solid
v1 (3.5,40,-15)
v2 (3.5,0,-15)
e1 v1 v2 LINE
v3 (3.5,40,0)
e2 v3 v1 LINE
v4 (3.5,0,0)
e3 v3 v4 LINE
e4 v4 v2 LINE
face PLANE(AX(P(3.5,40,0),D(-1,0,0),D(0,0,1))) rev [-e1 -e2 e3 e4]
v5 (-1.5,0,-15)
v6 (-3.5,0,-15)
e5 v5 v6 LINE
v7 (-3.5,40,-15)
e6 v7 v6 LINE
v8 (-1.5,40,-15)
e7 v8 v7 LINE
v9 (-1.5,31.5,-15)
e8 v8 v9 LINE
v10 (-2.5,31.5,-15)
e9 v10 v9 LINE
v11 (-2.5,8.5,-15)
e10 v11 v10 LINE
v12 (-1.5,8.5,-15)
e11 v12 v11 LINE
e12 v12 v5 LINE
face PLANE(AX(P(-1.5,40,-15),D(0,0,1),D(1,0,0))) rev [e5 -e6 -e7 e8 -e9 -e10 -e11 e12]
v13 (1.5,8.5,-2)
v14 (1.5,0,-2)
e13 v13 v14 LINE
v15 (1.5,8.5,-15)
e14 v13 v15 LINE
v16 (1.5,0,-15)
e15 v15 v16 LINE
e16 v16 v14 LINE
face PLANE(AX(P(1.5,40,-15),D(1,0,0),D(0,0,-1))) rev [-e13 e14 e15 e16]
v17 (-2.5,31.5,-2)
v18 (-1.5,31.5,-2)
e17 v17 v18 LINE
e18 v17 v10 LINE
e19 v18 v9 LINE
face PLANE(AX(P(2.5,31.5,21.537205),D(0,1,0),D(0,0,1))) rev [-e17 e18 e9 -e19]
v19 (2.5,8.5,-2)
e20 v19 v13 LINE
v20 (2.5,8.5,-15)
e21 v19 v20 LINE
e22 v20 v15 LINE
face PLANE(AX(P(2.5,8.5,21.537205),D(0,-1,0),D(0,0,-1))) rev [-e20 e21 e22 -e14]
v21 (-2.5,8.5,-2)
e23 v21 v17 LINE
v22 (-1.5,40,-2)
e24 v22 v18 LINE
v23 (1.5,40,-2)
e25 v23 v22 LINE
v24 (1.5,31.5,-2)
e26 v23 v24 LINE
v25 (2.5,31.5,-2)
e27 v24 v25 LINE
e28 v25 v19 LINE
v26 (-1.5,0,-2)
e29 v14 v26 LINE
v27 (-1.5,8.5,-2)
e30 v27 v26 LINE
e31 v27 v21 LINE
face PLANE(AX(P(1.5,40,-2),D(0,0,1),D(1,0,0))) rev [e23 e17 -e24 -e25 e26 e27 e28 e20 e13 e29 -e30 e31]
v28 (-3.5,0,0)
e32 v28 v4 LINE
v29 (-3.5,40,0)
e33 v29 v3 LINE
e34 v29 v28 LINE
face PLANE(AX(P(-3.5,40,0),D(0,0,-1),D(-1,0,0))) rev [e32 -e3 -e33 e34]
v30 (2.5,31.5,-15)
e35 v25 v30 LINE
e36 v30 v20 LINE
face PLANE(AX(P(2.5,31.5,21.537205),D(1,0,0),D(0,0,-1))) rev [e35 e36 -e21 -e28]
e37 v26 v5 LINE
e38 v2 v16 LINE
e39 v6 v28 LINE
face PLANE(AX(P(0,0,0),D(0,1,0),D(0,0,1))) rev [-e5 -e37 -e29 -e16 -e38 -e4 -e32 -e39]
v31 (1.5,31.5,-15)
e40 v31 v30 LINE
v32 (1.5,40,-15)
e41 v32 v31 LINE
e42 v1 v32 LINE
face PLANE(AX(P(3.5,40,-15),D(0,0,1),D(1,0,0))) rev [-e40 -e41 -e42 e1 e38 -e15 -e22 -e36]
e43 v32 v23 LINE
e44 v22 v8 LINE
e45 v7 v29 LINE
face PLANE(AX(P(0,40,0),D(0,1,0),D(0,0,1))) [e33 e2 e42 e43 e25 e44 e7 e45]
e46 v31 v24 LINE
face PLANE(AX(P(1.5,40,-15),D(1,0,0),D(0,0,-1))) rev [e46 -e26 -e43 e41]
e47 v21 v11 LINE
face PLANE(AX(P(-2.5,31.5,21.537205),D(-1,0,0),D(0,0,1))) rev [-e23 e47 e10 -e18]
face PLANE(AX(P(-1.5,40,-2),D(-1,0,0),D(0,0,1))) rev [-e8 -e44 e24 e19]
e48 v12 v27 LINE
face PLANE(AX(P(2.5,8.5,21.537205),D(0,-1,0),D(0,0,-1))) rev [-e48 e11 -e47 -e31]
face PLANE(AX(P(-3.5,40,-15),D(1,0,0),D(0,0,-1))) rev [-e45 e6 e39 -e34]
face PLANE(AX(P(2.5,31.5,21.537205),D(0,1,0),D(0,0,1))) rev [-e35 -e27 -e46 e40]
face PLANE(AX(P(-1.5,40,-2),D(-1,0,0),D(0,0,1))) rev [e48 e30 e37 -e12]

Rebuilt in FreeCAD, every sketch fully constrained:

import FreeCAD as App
import Part
import Sketcher
from FreeCAD import Vector

doc = App.newDocument("Part")
body = doc.addObject("PartDesign::Body", "Body")

sketch1 = body.newObject("Sketcher::SketchObject", "Sketch")
sketch1.AttachmentSupport = (doc.getObject("XZ_Plane"), [""])
sketch1.MapMode = "FlatFace"
sketch1.addGeometry(Part.LineSegment(Vector(-3.5, -15, 0), Vector(-3.5, 0, 0)), False)
sketch1.addGeometry(Part.LineSegment(Vector(-3.5, 0, 0), Vector(3.5, 0, 0)), False)
sketch1.addGeometry(Part.LineSegment(Vector(3.5, 0, 0), Vector(3.5, -15, 0)), False)
sketch1.addGeometry(Part.LineSegment(Vector(3.5, -15, 0), Vector(1.5, -15, 0)), False)
sketch1.addGeometry(Part.LineSegment(Vector(1.5, -15, 0), Vector(1.5, -2, 0)), False)
sketch1.addGeometry(Part.LineSegment(Vector(1.5, -2, 0), Vector(-1.5, -2, 0)), False)
sketch1.addGeometry(Part.LineSegment(Vector(-1.5, -2, 0), Vector(-1.5, -15, 0)), False)
sketch1.addGeometry(Part.LineSegment(Vector(-1.5, -15, 0), Vector(-3.5, -15, 0)), False)
sketch1.addConstraint(Sketcher.Constraint("Coincident", 0, 2, 1, 1))
sketch1.addConstraint(Sketcher.Constraint("Coincident", 1, 2, 2, 1))
sketch1.addConstraint(Sketcher.Constraint("Coincident", 2, 2, 3, 1))
sketch1.addConstraint(Sketcher.Constraint("Coincident", 3, 2, 4, 1))
sketch1.addConstraint(Sketcher.Constraint("Coincident", 4, 2, 5, 1))
sketch1.addConstraint(Sketcher.Constraint("Coincident", 5, 2, 6, 1))
sketch1.addConstraint(Sketcher.Constraint("Coincident", 6, 2, 7, 1))
sketch1.addConstraint(Sketcher.Constraint("Coincident", 7, 2, 0, 1))
sketch1.addConstraint(Sketcher.Constraint("Vertical", 0))
sketch1.addConstraint(Sketcher.Constraint("Horizontal", 1))
sketch1.addConstraint(Sketcher.Constraint("Vertical", 2))
sketch1.addConstraint(Sketcher.Constraint("Horizontal", 3))
sketch1.addConstraint(Sketcher.Constraint("Vertical", 4))
sketch1.addConstraint(Sketcher.Constraint("Horizontal", 5))
sketch1.addConstraint(Sketcher.Constraint("Vertical", 6))
sketch1.addConstraint(Sketcher.Constraint("Horizontal", 7))
sketch1.addConstraint(Sketcher.Constraint("Symmetric", 0, 2, 1, 2, -1, 1))
sketch1.addConstraint(Sketcher.Constraint("Symmetric", 3, 2, 6, 2, -2))
sketch1.addConstraint(Sketcher.Constraint("DistanceX", 1, 1, 1, 2, 7.0))
sketch1.addConstraint(Sketcher.Constraint("DistanceX", 3, 2, 3, 1, 2.0))
sketch1.addConstraint(Sketcher.Constraint("DistanceY", 0, 1, 0, 2, 15.0))
sketch1.addConstraint(Sketcher.Constraint("DistanceY", 4, 1, 4, 2, 13.0))
pad1 = body.newObject("PartDesign::Pad", "Pad")
pad1.Profile = sketch1
pad1.Length = 40
pad1.Reversed = True

sketch2 = body.newObject("Sketcher::SketchObject", "Sketch001")
sketch2.AttachmentSupport = (doc.getObject("XY_Plane"), [""])
sketch2.MapMode = "FlatFace"
sketch2.AttachmentOffset = App.Placement(Vector(0, 0, -15), App.Rotation())
sketch2.addGeometry(Part.LineSegment(Vector(2.5, 31.5, 0), Vector(2.5, 8.5, 0)), False)
sketch2.addGeometry(Part.LineSegment(Vector(2.5, 8.5, 0), Vector(-2.5, 8.5, 0)), False)
sketch2.addGeometry(Part.LineSegment(Vector(-2.5, 8.5, 0), Vector(-2.5, 31.5, 0)), False)
sketch2.addGeometry(Part.LineSegment(Vector(-2.5, 31.5, 0), Vector(2.5, 31.5, 0)), False)
sketch2.addConstraint(Sketcher.Constraint("Coincident", 0, 2, 1, 1))
sketch2.addConstraint(Sketcher.Constraint("Coincident", 1, 2, 2, 1))
sketch2.addConstraint(Sketcher.Constraint("Coincident", 2, 2, 3, 1))
sketch2.addConstraint(Sketcher.Constraint("Coincident", 3, 2, 0, 1))
sketch2.addConstraint(Sketcher.Constraint("Vertical", 0))
sketch2.addConstraint(Sketcher.Constraint("Horizontal", 1))
sketch2.addConstraint(Sketcher.Constraint("Vertical", 2))
sketch2.addConstraint(Sketcher.Constraint("Horizontal", 3))
sketch2.addConstraint(Sketcher.Constraint("DistanceX", 1, 2, 1, 1, 5.0))
sketch2.addConstraint(Sketcher.Constraint("DistanceY", 0, 2, 0, 1, 23.0))
sketch2.addConstraint(Sketcher.Constraint("DistanceX", -1, 1, 0, 2, 2.5))
sketch2.addConstraint(Sketcher.Constraint("DistanceY", -1, 1, 0, 2, 8.5))
pocket1 = body.newObject("PartDesign::Pocket", "Pocket")
pocket1.Profile = sketch2
pocket1.Length = 13
pocket1.Reversed = True

doc.recompute()
